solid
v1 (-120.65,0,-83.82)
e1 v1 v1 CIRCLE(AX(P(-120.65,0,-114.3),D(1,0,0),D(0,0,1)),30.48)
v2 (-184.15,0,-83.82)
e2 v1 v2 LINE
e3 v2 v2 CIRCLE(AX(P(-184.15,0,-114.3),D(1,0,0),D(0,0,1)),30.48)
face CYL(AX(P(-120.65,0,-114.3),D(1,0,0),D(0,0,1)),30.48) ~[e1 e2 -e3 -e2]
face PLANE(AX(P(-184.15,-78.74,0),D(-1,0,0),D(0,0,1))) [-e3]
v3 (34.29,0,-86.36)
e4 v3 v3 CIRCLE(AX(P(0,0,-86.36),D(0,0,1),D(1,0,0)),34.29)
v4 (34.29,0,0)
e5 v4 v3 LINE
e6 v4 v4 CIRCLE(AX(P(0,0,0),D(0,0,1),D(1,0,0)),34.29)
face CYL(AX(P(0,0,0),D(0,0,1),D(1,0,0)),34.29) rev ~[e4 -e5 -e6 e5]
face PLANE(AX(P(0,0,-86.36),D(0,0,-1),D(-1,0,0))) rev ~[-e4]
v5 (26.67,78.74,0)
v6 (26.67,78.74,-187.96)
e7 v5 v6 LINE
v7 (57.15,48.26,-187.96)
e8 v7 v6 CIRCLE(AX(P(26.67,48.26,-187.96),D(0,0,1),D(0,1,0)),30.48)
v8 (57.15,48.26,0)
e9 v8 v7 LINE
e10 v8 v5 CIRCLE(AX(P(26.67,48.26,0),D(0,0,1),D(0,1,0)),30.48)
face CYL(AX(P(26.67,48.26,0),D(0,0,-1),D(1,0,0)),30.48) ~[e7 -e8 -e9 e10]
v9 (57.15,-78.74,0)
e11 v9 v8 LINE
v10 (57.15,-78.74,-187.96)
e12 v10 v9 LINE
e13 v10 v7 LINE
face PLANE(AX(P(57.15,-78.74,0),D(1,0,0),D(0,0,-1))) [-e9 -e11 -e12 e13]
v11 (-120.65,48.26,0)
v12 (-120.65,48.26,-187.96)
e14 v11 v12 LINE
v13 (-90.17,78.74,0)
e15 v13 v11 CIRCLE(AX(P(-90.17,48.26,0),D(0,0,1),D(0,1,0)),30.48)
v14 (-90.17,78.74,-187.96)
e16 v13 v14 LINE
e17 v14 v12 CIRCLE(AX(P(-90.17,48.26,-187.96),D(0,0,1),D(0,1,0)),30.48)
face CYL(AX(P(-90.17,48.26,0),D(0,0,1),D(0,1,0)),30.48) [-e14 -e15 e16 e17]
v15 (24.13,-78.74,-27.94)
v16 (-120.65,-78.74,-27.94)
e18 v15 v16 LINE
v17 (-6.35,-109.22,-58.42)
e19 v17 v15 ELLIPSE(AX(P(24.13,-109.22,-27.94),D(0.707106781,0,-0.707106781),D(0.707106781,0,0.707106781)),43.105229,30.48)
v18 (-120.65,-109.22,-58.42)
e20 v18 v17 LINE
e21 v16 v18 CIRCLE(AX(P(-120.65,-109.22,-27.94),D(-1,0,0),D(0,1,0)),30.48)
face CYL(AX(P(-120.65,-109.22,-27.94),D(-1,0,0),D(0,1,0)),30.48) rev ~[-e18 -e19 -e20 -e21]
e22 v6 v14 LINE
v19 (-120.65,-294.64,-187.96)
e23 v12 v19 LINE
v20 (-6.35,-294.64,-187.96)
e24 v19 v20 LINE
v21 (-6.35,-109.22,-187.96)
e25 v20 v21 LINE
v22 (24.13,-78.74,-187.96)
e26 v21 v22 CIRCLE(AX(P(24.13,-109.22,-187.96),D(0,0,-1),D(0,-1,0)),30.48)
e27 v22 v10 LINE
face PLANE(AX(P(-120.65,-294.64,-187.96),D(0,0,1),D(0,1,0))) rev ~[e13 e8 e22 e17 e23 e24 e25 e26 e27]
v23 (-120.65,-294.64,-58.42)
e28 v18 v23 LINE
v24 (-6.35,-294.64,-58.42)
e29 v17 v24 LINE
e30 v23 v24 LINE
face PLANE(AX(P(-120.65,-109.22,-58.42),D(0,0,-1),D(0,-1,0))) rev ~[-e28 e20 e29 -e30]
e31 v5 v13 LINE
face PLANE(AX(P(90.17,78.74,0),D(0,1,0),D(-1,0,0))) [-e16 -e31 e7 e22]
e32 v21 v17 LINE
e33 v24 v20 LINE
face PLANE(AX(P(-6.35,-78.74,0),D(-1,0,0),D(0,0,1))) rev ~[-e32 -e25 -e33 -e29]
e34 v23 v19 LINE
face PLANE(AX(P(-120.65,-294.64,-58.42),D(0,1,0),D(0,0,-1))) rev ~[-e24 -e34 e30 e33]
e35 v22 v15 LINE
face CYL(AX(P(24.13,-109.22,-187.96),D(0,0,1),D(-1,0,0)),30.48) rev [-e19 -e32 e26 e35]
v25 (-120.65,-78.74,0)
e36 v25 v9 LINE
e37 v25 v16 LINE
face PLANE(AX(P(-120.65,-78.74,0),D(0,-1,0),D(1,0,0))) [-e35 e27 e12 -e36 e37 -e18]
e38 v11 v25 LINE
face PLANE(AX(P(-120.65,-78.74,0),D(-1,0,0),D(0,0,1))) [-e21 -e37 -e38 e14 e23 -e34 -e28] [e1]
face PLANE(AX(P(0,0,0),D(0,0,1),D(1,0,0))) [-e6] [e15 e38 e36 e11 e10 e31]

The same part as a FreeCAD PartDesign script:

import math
import FreeCAD as App
import Part
import Sketcher
Q = App.Units.Quantity


def edges_at(feature, points):
    """Names of the edges that pass closest to the given points."""
    edges = feature.Shape.Edges
    near = lambda p: min(range(len(edges)), key=lambda i: edges[i].distToShape(Part.Vertex(*p))[0])
    return sorted({f"Edge{near(p) + 1}" for p in points})


def add_polygon(sketch, points):
    """Adds a closed chain of lines whose ends are joined by coincident constraints."""
    first, n = sketch.GeometryCount, len(points)
    for a, b in zip(points, points[1:] + points[:1]):
        sketch.addGeometry(Part.LineSegment(App.Vector(*a, 0), App.Vector(*b, 0)), False)
    for i in range(n):
        sketch.addConstraint(Sketcher.Constraint("Coincident", first + i, 2, first + (i + 1) % n, 1))

doc = App.newDocument("Part")
body = doc.addObject("PartDesign::Body", "Body")

# Sketch on XY plane
sketch1 = body.newObject("Sketcher::SketchObject", "Sketch")
sketch1.AttachmentSupport = (doc.getObject("XY_Plane"), [""])
sketch1.MapMode = "FlatFace"
sketch1.addGeometry(Part.LineSegment(App.Vector(-121, 48, 0), App.Vector(-121, -79, 0)), False)
sketch1.addGeometry(Part.LineSegment(App.Vector(-121, -79, 0), App.Vector(121, -79, 0)), False)
sketch1.addGeometry(Part.LineSegment(App.Vector(121, -79, 0), App.Vector(121, 48, 0)), False)
sketch1.addGeometry(Part.ArcOfCircle(Part.Circle(App.Vector(90, 48, 0), App.Vector(0, 0, 1), 30), math.radians(0), math.radians(90)), False)
sketch1.addGeometry(Part.LineSegment(App.Vector(90, 79, 0), App.Vector(-90, 79, 0)), False)
sketch1.addGeometry(Part.ArcOfCircle(Part.Circle(App.Vector(-90, 48, 0), App.Vector(0, 0, 1), 30), math.radians(90), math.radians(180)), False)
sketch1.addGeometry(Part.Circle(App.Vector(0, 0, 0), App.Vector(0, 0, 1), 34), False)
sketch1.addConstraint(Sketcher.Constraint("Coincident", 0, 2, 1, 1))
sketch1.addConstraint(Sketcher.Constraint("Coincident", 1, 2, 2, 1))
sketch1.addConstraint(Sketcher.Constraint("Tangent", 2, 2, 3, 1))
sketch1.addConstraint(Sketcher.Constraint("Tangent", 3, 2, 4, 1))
sketch1.addConstraint(Sketcher.Constraint("Tangent", 4, 2, 5, 1))
sketch1.addConstraint(Sketcher.Constraint("Tangent", 5, 2, 0, 1))
sketch1.addConstraint(Sketcher.Constraint("Vertical", 0))
sketch1.addConstraint(Sketcher.Constraint("Horizontal", 1))
sketch1.addConstraint(Sketcher.Constraint("Vertical", 2))
sketch1.addConstraint(Sketcher.Constraint("Horizontal", 4))
sketch1.addConstraint(Sketcher.Constraint("Coincident", 6, 3, -1, 1))
sketch1.addConstraint(Sketcher.Constraint("Equal", 3, 5))
sketch1.addConstraint(Sketcher.Constraint("Diameter", 6, Q("2.7 in")))
sketch1.addConstraint(Sketcher.Constraint("Radius", 3, Q("1.2 in")))
sketch1.addConstraint(Sketcher.Constraint("DistanceX", 1, 1, 1, 2, Q("9.5 in")))
sketch1.addConstraint(Sketcher.Constraint("DistanceY", 0, 2, -1, 1, Q("3.1 in")))
sketch1.addConstraint(Sketcher.Constraint("DistanceY", -1, 1, 3, 2, Q("3.1 in")))
sketch1.addConstraint(Sketcher.Constraint("DistanceX", 0, 2, -1, 1, Q("4.75 in")))
pad1 = body.newObject("PartDesign::Pad", "Pad")
pad1.Profile = sketch1
pad1.Length = Q("7.4 in")
pad1.Reversed = True

# Sketch on XY plane
sketch2 = body.newObject("Sketcher::SketchObject", "Sketch001")
sketch2.AttachmentSupport = (doc.getObject("XY_Plane"), [""])
sketch2.MapMode = "FlatFace"
sketch2.AttachmentOffset = App.Placement(App.Vector(0, 0, -7.4 * 25.4), App.Rotation())
sketch2.addGeometry(Part.Circle(App.Vector(0, 0, 0), App.Vector(0, 0, 1), 52), False)
sketch2.addConstraint(Sketcher.Constraint("Coincident", 0, 3, -1, 1))
sketch2.addConstraint(Sketcher.Constraint("Diameter", 0, Q("104.0024 mm")))
pad2 = body.newObject("PartDesign::Pad", "Pad001")
pad2.Profile = sketch2
pad2.Length = Q("4 in")

# Sketch on YZ plane
sketch3 = body.newObject("Sketcher::SketchObject", "Sketch002")
sketch3.AttachmentSupport = (doc.getObject("YZ_Plane"), [""])
sketch3.MapMode = "FlatFace"
sketch3.AttachmentOffset = App.Placement(App.Vector(0, 0, -4.75 * 25.4), App.Rotation())
sketch3.addGeometry(Part.LineSegment(App.Vector(-295, -58, 0), App.Vector(-109, -58, 0)), False)
sketch3.addGeometry(Part.ArcOfCircle(Part.Circle(App.Vector(-109, -28, 0), App.Vector(0, 0, 1), 30), math.radians(-90), math.radians(0)), False)
sketch3.addGeometry(Part.LineSegment(App.Vector(-79, -28, 0), App.Vector(-79, -188, 0)), False)
sketch3.addGeometry(Part.LineSegment(App.Vector(-79, -188, 0), App.Vector(-295, -188, 0)), False)
sketch3.addGeometry(Part.LineSegment(App.Vector(-295, -188, 0), App.Vector(-295, -58, 0)), False)
sketch3.addConstraint(Sketcher.Constraint("Tangent", 0, 2, 1, 1))
sketch3.addConstraint(Sketcher.Constraint("Tangent", 1, 2, 2, 1))
sketch3.addConstraint(Sketcher.Constraint("Coincident", 2, 2, 3, 1))
sketch3.addConstraint(Sketcher.Constraint("Coincident", 3, 2, 4, 1))
sketch3.addConstraint(Sketcher.Constraint("Coincident", 4, 2, 0, 1))
sketch3.addConstraint(Sketcher.Constraint("Horizontal", 0))
sketch3.addConstraint(Sketcher.Constraint("Vertical", 2))
sketch3.addConstraint(Sketcher.Constraint("Horizontal", 3))
sketch3.addConstraint(Sketcher.Constraint("Vertical", 4))
sketch3.addConstraint(Sketcher.Constraint("Radius", 1, Q("1.2 in")))
sketch3.addConstraint(Sketcher.Constraint("DistanceY", 4, 1, 4, 2, Q("5.1 in")))
sketch3.addConstraint(Sketcher.Constraint("DistanceX", 0, 1, 0, 2, Q("7.3 in")))
sketch3.addConstraint(Sketcher.Constraint("DistanceX", 1, 3, -1, 1, Q("4.3 in")))
sketch3.addConstraint(Sketcher.Constraint("DistanceY", 1, 3, -1, 1, Q("1.1 in")))
pad3 = body.newObject("PartDesign::Pad", "Pad002")
pad3.Profile = sketch3
pad3.Length = Q("4.5 in")
doc.recompute()

fillet = body.newObject("PartDesign::Fillet", "Fillet")
fillet.Base = (pad3, edges_at(pad3, [(-6.35, -78.74, -107.95)]))
fillet.Radius = Q("1.2 in")

# Sketch on YZ plane
sketch4 = body.newObject("Sketcher::SketchObject", "Sketch003")
sketch4.AttachmentSupport = (doc.getObject("YZ_Plane"), [""])
sketch4.MapMode = "FlatFace"
sketch4.AttachmentOffset = App.Placement(App.Vector(0, 0, -4.75 * 25.4), App.Rotation())
sketch4.addGeometry(Part.Circle(App.Vector(0, -114, 0), App.Vector(0, 0, 1), 30), False)
sketch4.addConstraint(Sketcher.Constraint("PointOnObject", 0, 3, -2))
sketch4.addConstraint(Sketcher.Constraint("Diameter", 0, Q("2.4 in")))
sketch4.addConstraint(Sketcher.Constraint("DistanceY", 0, 3, -1, 1, Q("4.5 in")))
pad4 = body.newObject("PartDesign::Pad", "Pad003")
pad4.Profile = sketch4
pad4.Length = Q("2.5 in")
pad4.Reversed = True

# Sketch on YZ plane
sketch5 = body.newObject("Sketcher::SketchObject", "Sketch004")
sketch5.AttachmentSupport = (doc.getObject("YZ_Plane"), [""])
sketch5.MapMode = "FlatFace"
sketch5.AttachmentOffset = App.Placement(App.Vector(0, 0, 4.75 * 25.4), App.Rotation())
add_polygon(sketch5, [(109, 24), (-96, 24), (-96, -229), (109, -229)])  # lines 0-3
sketch5.addConstraint(Sketcher.Constraint("Horizontal", 0))
sketch5.addConstraint(Sketcher.Constraint("Vertical", 1))
sketch5.addConstraint(Sketcher.Constraint("Horizontal", 2))
sketch5.addConstraint(Sketcher.Constraint("Vertical", 3))
sketch5.addConstraint(Sketcher.Constraint("DistanceY", 1, 2, -1, 1, Q("9 in")))
sketch5.addConstraint(Sketcher.Constraint("DistanceX", 0, 2, 0, 1, Q("8.0625 in")))
sketch5.addConstraint(Sketcher.Constraint("DistanceY", 1, 2, 1, 1, Q("9.9375 in")))
sketch5.addConstraint(Sketcher.Constraint("DistanceX", -1, 1, 2, 2, Q("4.275 in")))
pocket1 = body.newObject("PartDesign::Pocket", "Pocket")
pocket1.Profile = sketch5
pocket1.Length = Q("2.5 in")
doc.recompute()

fillet2 = body.newObject("PartDesign::Fillet", "Fillet001")
fillet2.Base = (pocket1, edges_at(pocket1, [(57.15, 78.74, -93.98)]))
fillet2.Radius = Q("1.2 in")

doc.recompute()
